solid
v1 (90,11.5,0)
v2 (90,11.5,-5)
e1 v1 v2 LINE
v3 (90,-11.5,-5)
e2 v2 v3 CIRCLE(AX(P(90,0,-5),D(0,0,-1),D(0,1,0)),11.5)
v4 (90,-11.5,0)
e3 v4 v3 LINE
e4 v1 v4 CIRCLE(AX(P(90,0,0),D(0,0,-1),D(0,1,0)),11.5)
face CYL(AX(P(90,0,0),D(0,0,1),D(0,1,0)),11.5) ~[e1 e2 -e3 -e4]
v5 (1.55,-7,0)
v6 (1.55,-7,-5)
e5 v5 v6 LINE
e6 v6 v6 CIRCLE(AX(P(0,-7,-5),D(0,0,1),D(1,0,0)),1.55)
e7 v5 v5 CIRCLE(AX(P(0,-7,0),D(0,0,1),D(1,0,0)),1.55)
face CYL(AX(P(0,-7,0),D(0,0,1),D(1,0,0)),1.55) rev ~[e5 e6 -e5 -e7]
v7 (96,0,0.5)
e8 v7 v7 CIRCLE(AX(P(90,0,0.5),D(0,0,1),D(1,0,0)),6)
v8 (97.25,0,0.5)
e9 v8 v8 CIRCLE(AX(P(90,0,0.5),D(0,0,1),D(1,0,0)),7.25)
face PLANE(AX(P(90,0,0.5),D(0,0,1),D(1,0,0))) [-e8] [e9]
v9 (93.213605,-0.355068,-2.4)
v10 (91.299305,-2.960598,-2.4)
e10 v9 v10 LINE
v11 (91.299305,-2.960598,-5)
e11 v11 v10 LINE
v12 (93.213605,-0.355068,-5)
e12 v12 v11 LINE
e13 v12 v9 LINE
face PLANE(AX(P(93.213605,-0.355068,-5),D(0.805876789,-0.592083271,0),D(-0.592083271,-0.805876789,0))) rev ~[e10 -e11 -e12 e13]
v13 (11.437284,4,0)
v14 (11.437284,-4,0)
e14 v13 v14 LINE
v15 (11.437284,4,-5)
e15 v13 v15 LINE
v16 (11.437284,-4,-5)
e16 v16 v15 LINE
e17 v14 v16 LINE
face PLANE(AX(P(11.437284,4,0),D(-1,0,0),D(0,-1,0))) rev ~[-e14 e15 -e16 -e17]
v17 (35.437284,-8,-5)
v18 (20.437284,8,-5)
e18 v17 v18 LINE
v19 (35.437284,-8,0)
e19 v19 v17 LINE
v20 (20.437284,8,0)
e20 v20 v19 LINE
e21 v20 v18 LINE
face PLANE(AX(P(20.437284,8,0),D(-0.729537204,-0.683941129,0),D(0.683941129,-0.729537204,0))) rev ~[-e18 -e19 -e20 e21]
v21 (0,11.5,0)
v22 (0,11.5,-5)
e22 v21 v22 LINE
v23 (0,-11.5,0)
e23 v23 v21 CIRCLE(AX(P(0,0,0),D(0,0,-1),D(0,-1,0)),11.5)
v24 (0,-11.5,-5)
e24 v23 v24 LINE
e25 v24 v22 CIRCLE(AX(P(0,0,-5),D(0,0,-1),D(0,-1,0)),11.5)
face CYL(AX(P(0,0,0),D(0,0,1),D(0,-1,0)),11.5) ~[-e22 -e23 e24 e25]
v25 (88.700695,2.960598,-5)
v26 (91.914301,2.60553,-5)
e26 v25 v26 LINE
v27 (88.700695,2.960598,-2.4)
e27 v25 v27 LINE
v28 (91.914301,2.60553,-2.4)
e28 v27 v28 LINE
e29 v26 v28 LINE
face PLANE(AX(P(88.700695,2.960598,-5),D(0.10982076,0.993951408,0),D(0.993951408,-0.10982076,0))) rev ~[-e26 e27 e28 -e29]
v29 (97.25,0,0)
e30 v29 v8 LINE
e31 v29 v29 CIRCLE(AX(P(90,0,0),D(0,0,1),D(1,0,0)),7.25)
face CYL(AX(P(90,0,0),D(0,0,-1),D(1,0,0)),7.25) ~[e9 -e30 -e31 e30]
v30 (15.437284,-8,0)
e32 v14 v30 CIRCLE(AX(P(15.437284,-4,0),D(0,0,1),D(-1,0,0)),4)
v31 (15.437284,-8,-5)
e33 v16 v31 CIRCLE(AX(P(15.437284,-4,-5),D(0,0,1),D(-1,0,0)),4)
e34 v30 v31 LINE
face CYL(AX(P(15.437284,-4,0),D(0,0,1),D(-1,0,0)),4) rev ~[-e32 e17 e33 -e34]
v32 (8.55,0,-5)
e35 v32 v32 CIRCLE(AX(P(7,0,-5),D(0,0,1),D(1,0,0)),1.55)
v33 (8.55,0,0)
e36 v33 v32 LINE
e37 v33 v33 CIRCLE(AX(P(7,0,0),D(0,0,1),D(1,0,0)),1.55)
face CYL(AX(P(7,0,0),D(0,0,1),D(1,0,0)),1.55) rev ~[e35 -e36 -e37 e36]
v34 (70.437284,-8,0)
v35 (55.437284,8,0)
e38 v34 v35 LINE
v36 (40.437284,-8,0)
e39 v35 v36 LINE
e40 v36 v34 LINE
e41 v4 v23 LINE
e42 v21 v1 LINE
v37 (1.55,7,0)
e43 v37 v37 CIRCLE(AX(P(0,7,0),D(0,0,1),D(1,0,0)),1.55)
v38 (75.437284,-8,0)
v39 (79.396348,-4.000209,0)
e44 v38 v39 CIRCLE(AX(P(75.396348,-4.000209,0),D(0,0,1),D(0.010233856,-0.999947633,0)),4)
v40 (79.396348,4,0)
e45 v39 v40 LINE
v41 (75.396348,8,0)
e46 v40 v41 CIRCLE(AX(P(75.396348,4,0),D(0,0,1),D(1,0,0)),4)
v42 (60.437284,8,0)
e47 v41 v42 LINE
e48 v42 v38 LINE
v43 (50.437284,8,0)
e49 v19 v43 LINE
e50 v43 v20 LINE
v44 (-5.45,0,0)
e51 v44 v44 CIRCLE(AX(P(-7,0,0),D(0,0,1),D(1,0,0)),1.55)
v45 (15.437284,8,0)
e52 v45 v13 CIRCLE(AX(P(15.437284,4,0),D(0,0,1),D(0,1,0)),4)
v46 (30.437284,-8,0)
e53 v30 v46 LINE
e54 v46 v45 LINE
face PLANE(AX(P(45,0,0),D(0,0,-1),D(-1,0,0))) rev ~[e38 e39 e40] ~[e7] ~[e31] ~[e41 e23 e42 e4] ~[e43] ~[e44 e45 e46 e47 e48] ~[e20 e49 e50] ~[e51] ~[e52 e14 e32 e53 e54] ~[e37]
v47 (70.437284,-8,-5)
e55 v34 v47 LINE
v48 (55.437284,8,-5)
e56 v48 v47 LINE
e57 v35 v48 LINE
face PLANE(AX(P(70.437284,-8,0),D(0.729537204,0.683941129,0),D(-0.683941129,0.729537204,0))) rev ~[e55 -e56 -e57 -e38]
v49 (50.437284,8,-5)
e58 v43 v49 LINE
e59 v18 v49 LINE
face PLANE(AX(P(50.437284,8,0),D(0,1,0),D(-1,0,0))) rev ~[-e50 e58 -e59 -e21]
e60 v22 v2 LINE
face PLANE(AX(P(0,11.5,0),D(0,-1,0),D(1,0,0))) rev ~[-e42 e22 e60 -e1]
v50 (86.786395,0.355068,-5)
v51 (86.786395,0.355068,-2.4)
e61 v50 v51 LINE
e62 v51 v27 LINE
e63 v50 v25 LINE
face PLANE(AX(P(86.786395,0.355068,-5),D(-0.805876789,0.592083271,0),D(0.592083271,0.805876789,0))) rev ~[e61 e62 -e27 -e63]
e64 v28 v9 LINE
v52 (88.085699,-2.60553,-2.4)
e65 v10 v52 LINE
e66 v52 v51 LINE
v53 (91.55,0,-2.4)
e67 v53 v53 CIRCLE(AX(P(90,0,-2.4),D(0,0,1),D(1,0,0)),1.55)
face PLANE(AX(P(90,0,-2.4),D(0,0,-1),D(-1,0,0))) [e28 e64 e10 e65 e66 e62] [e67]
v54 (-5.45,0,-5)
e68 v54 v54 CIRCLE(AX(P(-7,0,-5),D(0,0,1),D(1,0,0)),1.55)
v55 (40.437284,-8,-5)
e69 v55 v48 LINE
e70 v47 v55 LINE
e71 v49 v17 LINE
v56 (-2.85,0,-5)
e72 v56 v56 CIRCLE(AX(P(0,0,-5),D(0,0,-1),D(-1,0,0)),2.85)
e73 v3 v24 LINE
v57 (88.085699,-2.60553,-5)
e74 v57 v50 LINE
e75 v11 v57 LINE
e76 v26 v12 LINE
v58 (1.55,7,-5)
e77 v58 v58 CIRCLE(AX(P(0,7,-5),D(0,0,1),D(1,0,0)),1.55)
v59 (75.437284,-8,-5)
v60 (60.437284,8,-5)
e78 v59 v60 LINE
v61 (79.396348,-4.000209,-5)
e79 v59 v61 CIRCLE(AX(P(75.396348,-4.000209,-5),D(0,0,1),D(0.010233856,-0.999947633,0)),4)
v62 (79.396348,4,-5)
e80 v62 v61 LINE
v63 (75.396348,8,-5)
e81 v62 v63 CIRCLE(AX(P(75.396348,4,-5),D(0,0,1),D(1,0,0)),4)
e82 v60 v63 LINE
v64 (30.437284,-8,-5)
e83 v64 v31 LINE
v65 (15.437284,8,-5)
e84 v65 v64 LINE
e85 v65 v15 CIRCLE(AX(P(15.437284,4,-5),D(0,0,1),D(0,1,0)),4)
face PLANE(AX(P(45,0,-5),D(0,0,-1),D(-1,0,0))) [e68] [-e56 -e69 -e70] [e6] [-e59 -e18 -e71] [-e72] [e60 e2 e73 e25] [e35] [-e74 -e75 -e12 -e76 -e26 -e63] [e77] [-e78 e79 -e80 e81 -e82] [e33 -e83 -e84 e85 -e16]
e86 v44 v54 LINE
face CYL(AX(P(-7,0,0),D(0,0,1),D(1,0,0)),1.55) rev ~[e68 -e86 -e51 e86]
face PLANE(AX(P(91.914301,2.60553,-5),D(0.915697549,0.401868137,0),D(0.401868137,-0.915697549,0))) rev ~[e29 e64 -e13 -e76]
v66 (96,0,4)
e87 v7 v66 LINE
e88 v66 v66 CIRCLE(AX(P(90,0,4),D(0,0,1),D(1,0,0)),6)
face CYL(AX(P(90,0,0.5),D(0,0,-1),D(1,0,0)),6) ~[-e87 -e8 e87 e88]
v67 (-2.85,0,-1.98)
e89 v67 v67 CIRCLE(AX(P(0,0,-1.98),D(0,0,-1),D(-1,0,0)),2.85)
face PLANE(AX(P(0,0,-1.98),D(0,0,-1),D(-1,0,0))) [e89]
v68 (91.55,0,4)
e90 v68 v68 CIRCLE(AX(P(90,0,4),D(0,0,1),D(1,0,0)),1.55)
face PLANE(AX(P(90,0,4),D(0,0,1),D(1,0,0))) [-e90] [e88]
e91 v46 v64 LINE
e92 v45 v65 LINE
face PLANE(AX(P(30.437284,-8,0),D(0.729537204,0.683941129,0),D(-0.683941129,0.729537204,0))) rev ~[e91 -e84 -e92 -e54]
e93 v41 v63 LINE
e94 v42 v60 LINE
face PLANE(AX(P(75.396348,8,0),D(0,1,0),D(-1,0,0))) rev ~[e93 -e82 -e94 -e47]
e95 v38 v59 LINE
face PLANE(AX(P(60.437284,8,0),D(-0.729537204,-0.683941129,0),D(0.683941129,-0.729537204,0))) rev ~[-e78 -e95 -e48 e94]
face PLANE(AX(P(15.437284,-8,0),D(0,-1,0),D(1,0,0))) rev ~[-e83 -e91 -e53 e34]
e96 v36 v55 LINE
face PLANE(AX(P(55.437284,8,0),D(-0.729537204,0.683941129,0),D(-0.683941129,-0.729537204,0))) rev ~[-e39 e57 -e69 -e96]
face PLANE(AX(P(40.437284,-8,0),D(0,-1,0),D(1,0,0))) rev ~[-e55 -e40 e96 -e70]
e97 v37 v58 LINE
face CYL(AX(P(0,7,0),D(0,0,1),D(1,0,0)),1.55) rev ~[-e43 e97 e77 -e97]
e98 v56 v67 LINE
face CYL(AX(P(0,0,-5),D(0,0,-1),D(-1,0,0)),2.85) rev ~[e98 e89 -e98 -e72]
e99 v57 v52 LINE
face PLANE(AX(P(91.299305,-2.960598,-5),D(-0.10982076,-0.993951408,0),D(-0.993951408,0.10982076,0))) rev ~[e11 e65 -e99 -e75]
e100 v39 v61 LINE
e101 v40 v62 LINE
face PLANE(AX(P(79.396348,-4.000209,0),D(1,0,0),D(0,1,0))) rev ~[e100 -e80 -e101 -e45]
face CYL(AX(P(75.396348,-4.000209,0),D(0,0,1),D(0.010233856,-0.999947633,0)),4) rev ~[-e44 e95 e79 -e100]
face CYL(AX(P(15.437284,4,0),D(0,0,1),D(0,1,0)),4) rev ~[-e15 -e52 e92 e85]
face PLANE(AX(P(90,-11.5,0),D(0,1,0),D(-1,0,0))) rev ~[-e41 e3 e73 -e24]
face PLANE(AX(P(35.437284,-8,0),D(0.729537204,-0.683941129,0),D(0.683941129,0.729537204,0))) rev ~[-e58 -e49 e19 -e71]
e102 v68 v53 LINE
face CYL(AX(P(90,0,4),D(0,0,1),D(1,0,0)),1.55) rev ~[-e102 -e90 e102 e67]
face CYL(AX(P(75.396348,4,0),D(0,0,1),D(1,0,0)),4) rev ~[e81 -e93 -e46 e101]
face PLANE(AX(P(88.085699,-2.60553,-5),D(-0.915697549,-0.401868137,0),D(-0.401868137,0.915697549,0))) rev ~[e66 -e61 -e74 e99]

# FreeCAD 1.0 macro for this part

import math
import FreeCAD as App
import Part
import Sketcher
from FreeCAD import Vector

doc = App.newDocument("Part")
body = doc.addObject("PartDesign::Body", "Body")

# Sketch on XY plane
sketch1 = body.newObject("Sketcher::SketchObject", "Sketch")
sketch1.AttachmentSupport = (doc.getObject("XY_Plane"), [""])
sketch1.MapMode = "FlatFace"
sketch1.addGeometry([
    Part.LineSegment(Vector(90, 12, 0), Vector(0, 12, 0)),
    Part.ArcOfCircle(Part.Circle(Vector(0, 0, 0), Vector(0, 0, 1), 12), math.radians(90), math.radians(270)),
    Part.LineSegment(Vector(0, -12, 0), Vector(90, -12, 0)),
    Part.ArcOfCircle(Part.Circle(Vector(90, 0, 0), Vector(0, 0, 1), 12), math.radians(-90), math.radians(90)),
], False)
sketch1.addConstraint([
    Sketcher.Constraint("Tangent", 0, 2, 1, 1),
    Sketcher.Constraint("Tangent", 1, 2, 2, 1),
    Sketcher.Constraint("Tangent", 2, 2, 3, 1),
    Sketcher.Constraint("Tangent", 3, 2, 0, 1),
    Sketcher.Constraint("Horizontal", 0),
    Sketcher.Constraint("Horizontal", 2),
    Sketcher.Constraint("Coincident", 1, 3, -1, 1),
    Sketcher.Constraint("Radius", 1, 11.5),
    Sketcher.Constraint("DistanceX", 0, 2, 0, 1, 90.0),
])
pad1 = body.newObject("PartDesign::Pad", "Pad")
pad1.Profile = sketch1
pad1.Length = 5
pad1.Reversed = True

# Sketch on XY plane
sketch2 = body.newObject("Sketcher::SketchObject", "Sketch001")
sketch2.AttachmentSupport = (doc.getObject("XY_Plane"), [""])
sketch2.MapMode = "FlatFace"
sketch2.addGeometry(Part.Circle(Vector(90, 0, 0), Vector(0, 0, 1), 7), False)
sketch2.addConstraint([
    Sketcher.Constraint("PointOnObject", 0, 3, -1),
    Sketcher.Constraint("Diameter", 0, 14.5),
    Sketcher.Constraint("DistanceX", -1, 1, 0, 3, 90.0),
])
pad2 = body.newObject("PartDesign::Pad", "Pad001")
pad2.Profile = sketch2
pad2.Length = 0.5

# Sketch on XY plane
sketch3 = body.newObject("Sketcher::SketchObject", "Sketch002")
sketch3.AttachmentSupport = (doc.getObject("XY_Plane"), [""])
sketch3.MapMode = "FlatFace"
sketch3.AttachmentOffset = App.Placement(Vector(0, 0, 0.5), App.Rotation())
sketch3.addGeometry(Part.Circle(Vector(90, 0, 0), Vector(0, 0, 1), 6), False)
sketch3.addConstraint([
    Sketcher.Constraint("PointOnObject", 0, 3, -1),
    Sketcher.Constraint("Diameter", 0, 12.0),
    Sketcher.Constraint("DistanceX", -1, 1, 0, 3, 90.0),
])
pad3 = body.newObject("PartDesign::Pad", "Pad002")
pad3.Profile = sketch3
pad3.Length = 3.5

# Sketch on XY plane
sketch4 = body.newObject("Sketcher::SketchObject", "Sketch003")
sketch4.AttachmentSupport = (doc.getObject("XY_Plane"), [""])
sketch4.MapMode = "FlatFace"
sketch4.AttachmentOffset = App.Placement(Vector(0, 0, 4), App.Rotation())
sketch4.addGeometry(Part.Circle(Vector(90, 0, 0), Vector(0, 0, 1), 1.6), False)
sketch4.addConstraint([
    Sketcher.Constraint("PointOnObject", 0, 3, -1),
    Sketcher.Constraint("Diameter", 0, 3.1),
    Sketcher.Constraint("DistanceX", -1, 1, 0, 3, 90.0),
])
pocket1 = body.newObject("PartDesign::Pocket", "Pocket")
pocket1.Profile = sketch4
pocket1.Length = 20.5

# Sketch on XY plane
sketch5 = body.newObject("Sketcher::SketchObject", "Sketch004")
sketch5.AttachmentSupport = (doc.getObject("XY_Plane"), [""])
sketch5.MapMode = "FlatFace"
sketch5.AttachmentOffset = App.Placement(Vector(0, 0, -5), App.Rotation())
sketch5.addGeometry([
    Part.LineSegment(Vector(93.2, -0.4, 0), Vector(91.3, -3, 0)),  # 0
    Part.LineSegment(Vector(91.3, -3, 0), Vector(88.1, -2.6, 0)),  # 1
    Part.LineSegment(Vector(88.1, -2.6, 0), Vector(86.8, 0.4, 0)),  # 2
    Part.LineSegment(Vector(86.8, 0.4, 0), Vector(88.7, 3, 0)),  # 3
    Part.LineSegment(Vector(88.7, 3, 0), Vector(91.9, 2.6, 0)),  # 4
    Part.LineSegment(Vector(91.9, 2.6, 0), Vector(93.2, -0.4, 0)),  # 5
], False)
sketch5.addConstraint([
    Sketcher.Constraint("Coincident", 0, 2, 1, 1),
    Sketcher.Constraint("Coincident", 1, 2, 2, 1),
    Sketcher.Constraint("Coincident", 2, 2, 3, 1),
    Sketcher.Constraint("Coincident", 3, 2, 4, 1),
    Sketcher.Constraint("Coincident", 4, 2, 5, 1),
    Sketcher.Constraint("Coincident", 5, 2, 0, 1),
    Sketcher.Constraint("Parallel", 0, 3),
    Sketcher.Constraint("Parallel", 1, 4),
    Sketcher.Constraint("Parallel", 2, 5),
    Sketcher.Constraint("Equal", 0, 1),
    Sketcher.Constraint("Equal", 1, 2),
    Sketcher.Constraint("Equal", 2, 3),
    Sketcher.Constraint("DistanceY", 0, 2, -1, 1, 2.960598),
    Sketcher.Constraint("DistanceX", -1, 1, 1, 2, 88.085699),
    Sketcher.Constraint("DistanceY", -1, 1, 3, 2, 2.960598),
    Sketcher.Constraint("DistanceX", -1, 1, 4, 2, 91.914301),
    Sketcher.Constraint("DistanceY", 1, 2, 2, 2, 2.960598),
    Sketcher.Constraint("DistanceX", 2, 2, 3, 2, 1.914301),
])
pocket2 = body.newObject("PartDesign::Pocket", "Pocket001")
pocket2.Profile = sketch5
pocket2.Length = 2.6
pocket2.Reversed = True

# Sketch on XY plane
sketch6 = body.newObject("Sketcher::SketchObject", "Sketch005")
sketch6.AttachmentSupport = (doc.getObject("XY_Plane"), [""])
sketch6.MapMode = "FlatFace"
sketch6.AttachmentOffset = App.Placement(Vector(0, 0, -5), App.Rotation())
sketch6.addGeometry(Part.Circle(Vector(0, 0, 0), Vector(0, 0, 1), 2.9), False)
sketch6.addConstraint([
    Sketcher.Constraint("Coincident", 0, 3, -1, 1),
    Sketcher.Constraint("Diameter", 0, 5.7),
])
pocket3 = body.newObject("PartDesign::Pocket", "Pocket002")
pocket3.Profile = sketch6
pocket3.Length = 3.02
pocket3.Reversed = True

# Sketch on XY plane
sketch7 = body.newObject("Sketcher::SketchObject", "Sketch006")
sketch7.AttachmentSupport = (doc.getObject("XY_Plane"), [""])
sketch7.MapMode = "FlatFace"
sketch7.addGeometry([
    Part.Circle(Vector(0, 7, 0), Vector(0, 0, 1), 1.6),
    Part.Circle(Vector(0, -7, 0), Vector(0, 0, 1), 1.6),
    Part.Circle(Vector(-7, 0, 0), Vector(0, 0, 1), 1.6),
    Part.Circle(Vector(7, 0, 0), Vector(0, 0, 1), 1.6),
], False)
sketch7.addConstraint([
    Sketcher.Constraint("Equal", 0, 1),
    Sketcher.Constraint("Equal", 1, 2),
    Sketcher.Constraint("Equal", 2, 3),
    Sketcher.Constraint("Symmetric", 0, 3, 1, 3, -1, 1),
    Sketcher.Constraint("Symmetric", 2, 3, 3, 3, -1, 1),
    Sketcher.Constraint("PointOnObject", 0, 3, -2),
    Sketcher.Constraint("PointOnObject", 2, 3, -1),
    Sketcher.Constraint("Diameter", 0, 3.1),
    Sketcher.Constraint("DistanceY", -1, 1, 0, 3, 7.0),
    Sketcher.Constraint("DistanceX", 2, 3, -1, 1, 7.0),
])
pocket4 = body.newObject("PartDesign::Pocket", "Pocket003")
pocket4.Profile = sketch7
pocket4.Length = 10.02

# Sketch on XY plane
sketch8 = body.newObject("Sketcher::SketchObject", "Sketch007")
sketch8.AttachmentSupport = (doc.getObject("XY_Plane"), [""])
sketch8.MapMode = "FlatFace"
sketch8.addGeometry([
    Part.LineSegment(Vector(50.437284, 8, 0), Vector(20.437284, 8, 0)),  # 0
    Part.LineSegment(Vector(20.437284, 8, 0), Vector(35.437284, -8, 0)),  # 1
    Part.LineSegment(Vector(35.437284, -8, 0), Vector(50.437284, 8, 0)),  # 2
    Part.LineSegment(Vector(30.437284, -8, 0), Vector(15.437284, 8, 0)),  # 3
    Part.ArcOfCircle(Part.Circle(Vector(15.437284, 4, 0), Vector(0, 0, 1), 4), math.radians(90), math.radians(180)),  # 4
    Part.LineSegment(Vector(11.437284, 4, 0), Vector(11.437284, -4, 0)),  # 5
    Part.ArcOfCircle(Part.Circle(Vector(15.437284, -4, 0), Vector(0, 0, 1), 4), math.radians(180), math.radians(270)),  # 6
    Part.LineSegment(Vector(15.437284, -8, 0), Vector(30.437284, -8, 0)),  # 7
    Part.LineSegment(Vector(70.437284, -8, 0), Vector(55.437284, 8, 0)),  # 8
    Part.LineSegment(Vector(55.437284, 8, 0), Vector(40.437284, -8, 0)),  # 9
    Part.LineSegment(Vector(40.437284, -8, 0), Vector(70.437284, -8, 0)),  # 10
    Part.LineSegment(Vector(75.396348, 8, 0), Vector(60.437284, 8, 0)),  # 11
    Part.LineSegment(Vector(60.437284, 8, 0), Vector(75.437284, -8, 0)),  # 12
    Part.ArcOfCircle(Part.Circle(Vector(75.396348, -4.000209, 0), Vector(0, 0, 1), 4), math.radians(-89.413633), math.radians(0)),  # 13
    Part.LineSegment(Vector(79.396348, -4.000209, 0), Vector(79.396348, 4, 0)),  # 14
    Part.ArcOfCircle(Part.Circle(Vector(75.396348, 4, 0), Vector(0, 0, 1), 4), math.radians(0), math.radians(90)),  # 15
], False)
sketch8.addConstraint([
    Sketcher.Constraint("Coincident", 0, 2, 1, 1),
    Sketcher.Constraint("Coincident", 1, 2, 2, 1),
    Sketcher.Constraint("Coincident", 2, 2, 0, 1),
    Sketcher.Constraint("Coincident", 3, 2, 4, 1),
    Sketcher.Constraint("Coincident", 4, 2, 5, 1),
    Sketcher.Constraint("Coincident", 5, 2, 6, 1),
    Sketcher.Constraint("Coincident", 6, 2, 7, 1),
    Sketcher.Constraint("Coincident", 7, 2, 3, 1),
    Sketcher.Constraint("Coincident", 8, 2, 9, 1),
    Sketcher.Constraint("Coincident", 9, 2, 10, 1),
    Sketcher.Constraint("Coincident", 10, 2, 8, 1),
    Sketcher.Constraint("Coincident", 11, 2, 12, 1),
    Sketcher.Constraint("Coincident", 12, 2, 13, 1),
    Sketcher.Constraint("Coincident", 13, 2, 14, 1),
    Sketcher.Constraint("Coincident", 14, 2, 15, 1),
    Sketcher.Constraint("Coincident", 15, 2, 11, 1),
    Sketcher.Constraint("Horizontal", 0),
    Sketcher.Constraint("Vertical", 5),
    Sketcher.Constraint("Horizontal", 7),
    Sketcher.Constraint("Horizontal", 10),
    Sketcher.Constraint("Horizontal", 11),
    Sketcher.Constraint("Vertical", 14),
    Sketcher.Constraint("Radius", 4, 4.0),
    Sketcher.Constraint("Radius", 6, 4.0),
    Sketcher.Constraint("Radius", 13, 4.0),
    Sketcher.Constraint("Radius", 15, 4.0),
    Sketcher.Constraint("DistanceX", 0, 2, 0, 1, 30.0),
    Sketcher.Constraint("DistanceX", 7, 1, 7, 2, 15.0),
    Sketcher.Constraint("DistanceX", 10, 1, 10, 2, 30.0),
    Sketcher.Constraint("DistanceY", 5, 2, 5, 1, 8.0),
    Sketcher.Constraint("DistanceY", -1, 1, 4, 3, 4.0),
    Sketcher.Constraint("DistanceY", 6, 3, -1, 1, 4.0),
    Sketcher.Constraint("DistanceY", -1, 1, 15, 3, 4.0),
    Sketcher.Constraint("DistanceY", -1, 1, 0, 2, 8.0),
    Sketcher.Constraint("DistanceY", 1, 2, -1, 1, 8.0),
    Sketcher.Constraint("DistanceY", -1, 1, 4, 2, 4.0),
    Sketcher.Constraint("DistanceY", -1, 1, 8, 2, 8.0),
    Sketcher.Constraint("DistanceY", 9, 2, -1, 1, 8.0),
    Sketcher.Constraint("DistanceY", 12, 2, -1, 1, 8.0),
    Sketcher.Constraint("DistanceY", -1, 1, 14, 2, 4.0),
    Sketcher.Constraint("DistanceX", 4, 3, 0, 2, 5.0),
    Sketcher.Constraint("DistanceX", 6, 3, 1, 2, 20.0),
    Sketcher.Constraint("DistanceX", 3, 2, 0, 2, 5.0),
    Sketcher.Constraint("DistanceX", 5, 2, 6, 2, 4.0),
    Sketcher.Constraint("DistanceX", 2, 2, 8, 2, 5.0),
    Sketcher.Constraint("DistanceX", 1, 2, 9, 2, 5.0),
    Sketcher.Constraint("DistanceX", 8, 2, 11, 2, 5.0),
    Sketcher.Constraint("DistanceX", 10, 2, 12, 2, 5.0),
    Sketcher.Constraint("DistanceX", 15, 2, 14, 2, 4.0),
    Sketcher.Constraint("DistanceY", 14, 1, 14, 2, 8.000209),
    Sketcher.Constraint("DistanceX", 11, 2, 11, 1, 14.959065),
    Sketcher.Constraint("DistanceX", -1, 1, 13, 3, 75.396348),
])
pocket5 = body.newObject("PartDesign::Pocket", "Pocket004")
pocket5.Profile = sketch8
pocket5.Length = 10

doc.recompute()
